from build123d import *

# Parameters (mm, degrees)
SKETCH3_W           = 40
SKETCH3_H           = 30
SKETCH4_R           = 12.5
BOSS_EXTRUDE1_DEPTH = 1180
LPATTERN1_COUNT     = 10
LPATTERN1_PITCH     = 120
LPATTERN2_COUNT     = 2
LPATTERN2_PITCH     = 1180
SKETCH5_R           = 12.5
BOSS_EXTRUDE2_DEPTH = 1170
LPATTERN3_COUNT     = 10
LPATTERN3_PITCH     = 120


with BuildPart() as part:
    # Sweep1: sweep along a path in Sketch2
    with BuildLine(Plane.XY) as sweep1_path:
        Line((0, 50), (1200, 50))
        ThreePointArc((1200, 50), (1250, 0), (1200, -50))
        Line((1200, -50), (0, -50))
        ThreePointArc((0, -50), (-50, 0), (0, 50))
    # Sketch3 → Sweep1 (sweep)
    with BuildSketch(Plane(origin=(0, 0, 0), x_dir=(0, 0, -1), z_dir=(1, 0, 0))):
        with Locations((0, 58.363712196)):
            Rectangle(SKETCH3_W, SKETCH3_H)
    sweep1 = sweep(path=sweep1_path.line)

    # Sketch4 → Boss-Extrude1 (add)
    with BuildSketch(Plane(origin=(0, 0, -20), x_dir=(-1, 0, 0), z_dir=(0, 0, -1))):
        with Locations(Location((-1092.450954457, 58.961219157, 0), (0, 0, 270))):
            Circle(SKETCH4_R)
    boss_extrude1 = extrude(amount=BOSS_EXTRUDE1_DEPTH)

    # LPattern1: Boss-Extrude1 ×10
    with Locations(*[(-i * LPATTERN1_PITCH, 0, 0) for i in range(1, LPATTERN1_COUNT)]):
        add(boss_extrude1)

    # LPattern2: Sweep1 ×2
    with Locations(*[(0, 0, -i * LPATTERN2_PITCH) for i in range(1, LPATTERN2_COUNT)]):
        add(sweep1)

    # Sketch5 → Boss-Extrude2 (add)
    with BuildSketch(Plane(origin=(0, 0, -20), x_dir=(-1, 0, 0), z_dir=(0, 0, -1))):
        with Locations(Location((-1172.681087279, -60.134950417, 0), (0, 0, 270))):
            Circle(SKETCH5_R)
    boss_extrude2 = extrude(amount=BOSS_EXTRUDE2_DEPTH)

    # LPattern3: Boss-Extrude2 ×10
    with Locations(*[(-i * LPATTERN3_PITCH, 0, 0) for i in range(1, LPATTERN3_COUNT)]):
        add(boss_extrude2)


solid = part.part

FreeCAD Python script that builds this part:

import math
import FreeCAD as App
import Part
import Sketcher
Q = App.Units.Quantity


def add_polygon(sketch, points):
    """Adds a closed chain of lines whose ends are joined by coincident constraints."""
    first, n = sketch.GeometryCount, len(points)
    for a, b in zip(points, points[1:] + points[:1]):
        sketch.addGeometry(Part.LineSegment(App.Vector(*a, 0), App.Vector(*b, 0)), False)
    for i in range(n):
        sketch.addConstraint(Sketcher.Constraint("Coincident", first + i, 2, first + (i + 1) % n, 1))

doc = App.newDocument("Part")
params = doc.addObject("Spreadsheet::Sheet", "Params")
for row, (alias, value) in enumerate([
    ("sketch1_width", "30 mm"),
    ("sketch1_height", "40 mm"),
    ("sketch2_radius", "50 mm"),
    ("sketch2_width", "1200 mm"),
    ("sketch3_diameter", "25 mm"),
    ("pad1_length", "1180 mm"),
    ("linearpattern_pitch", "120 mm"),
    ("linearpattern2_pitch", "1180 mm"),
    ("sketch4_diameter", "25 mm"),
    ("pad2_length", "1170 mm"),
    ("linearpattern3_pitch", "120 mm"),
], start=1):
    params.set(f"A{row}", alias)
    params.set(f"B{row}", "=" + value)
    params.setAlias(f"B{row}", alias)

body = doc.addObject("PartDesign::Body", "Body")

# Sketch on YZ plane
sketch1 = body.newObject("Sketcher::SketchObject", "Sketch")
sketch1.AttachmentSupport = (doc.getObject("YZ_Plane"), [""])
sketch1.MapMode = "FlatFace"
add_polygon(sketch1, [(73.363712, 20), (43.363712, 20), (43.363712, -20), (73.363712, -20)])  # lines 0-3
sketch1.addConstraint([
    Sketcher.Constraint("Horizontal", 0),
    Sketcher.Constraint("Vertical", 1),
    Sketcher.Constraint("Horizontal", 2),
    Sketcher.Constraint("Vertical", 3),
    Sketcher.Constraint("DistanceX", 0, 2, 0, 1, Q("30 mm")),
    Sketcher.Constraint("DistanceY", 1, 2, 1, 1, Q("40 mm")),
    Sketcher.Constraint("DistanceY", -1, 1, 0, 2, Q("20 mm")),
    Sketcher.Constraint("DistanceX", -1, 1, 0, 2, Q("43.363712 mm")),
])
sketch1.setExpression("Constraints[8]", "Params.sketch1_width")
sketch1.setExpression("Constraints[9]", "Params.sketch1_height")

# Sketch on XY plane
sketch2 = body.newObject("Sketcher::SketchObject", "Sketch001")
sketch2.AttachmentSupport = (doc.getObject("XY_Plane"), [""])
sketch2.MapMode = "FlatFace"
sketch2.addGeometry([
    Part.LineSegment(App.Vector(0, 50, 0), App.Vector(1200, 50, 0)),
    Part.ArcOfCircle(Part.Circle(App.Vector(1200, 0, 0), App.Vector(0, 0, 1), 50), math.radians(-90), math.radians(90)),
    Part.LineSegment(App.Vector(1200, -50, 0), App.Vector(0, -50, 0)),
    Part.ArcOfCircle(Part.Circle(App.Vector(0, 0, 0), App.Vector(0, 0, 1), 50), math.radians(90), math.radians(270)),
], False)
sketch2.addConstraint([
    Sketcher.Constraint("Tangent", 0, 2, 1, 2),
    Sketcher.Constraint("Tangent", 1, 1, 2, 1),
    Sketcher.Constraint("Tangent", 2, 2, 3, 2),
    Sketcher.Constraint("Tangent", 3, 1, 0, 1),
    Sketcher.Constraint("Horizontal", 0),
    Sketcher.Constraint("Horizontal", 2),
    Sketcher.Constraint("Coincident", 3, 3, -1, 1),
    Sketcher.Constraint("Radius", 1, Q("50 mm")),
    Sketcher.Constraint("DistanceX", 0, 1, 0, 2, Q("1200 mm")),
])
sketch2.setExpression("Constraints[7]", "Params.sketch2_radius")
sketch2.setExpression("Constraints[8]", "Params.sketch2_width")
doc.recompute()

additivepipe = body.newObject("PartDesign::AdditivePipe", "AdditivePipe")
additivepipe.Profile = sketch1
additivepipe.Spine = (sketch2, ["Edge1", "Edge2", "Edge3", "Edge4"])

# Sketch on XY plane
sketch3 = body.newObject("Sketcher::SketchObject", "Sketch002")
sketch3.AttachmentSupport = (doc.getObject("XY_Plane"), [""])
sketch3.MapMode = "FlatFace"
sketch3.AttachmentOffset = App.Placement(App.Vector(0, 0, -20), App.Rotation())
sketch3.addGeometry(Part.Circle(App.Vector(1092.450954, 58.961219, 0), App.Vector(0, 0, 1), 12.5), False)
sketch3.addConstraint([
    Sketcher.Constraint("Diameter", 0, Q("25 mm")),
    Sketcher.Constraint("DistanceY", -1, 1, 0, 3, Q("58.961219 mm")),
    Sketcher.Constraint("DistanceX", -1, 1, 0, 3, Q("1092.450954 mm")),
])
sketch3.setExpression("Constraints[0]", "Params.sketch3_diameter")
pad1 = body.newObject("PartDesign::Pad", "Pad")
pad1.Profile = sketch3
pad1.setExpression("Length", "Params.pad1_length")
pad1.Reversed = True
doc.recompute()

linearpattern = body.newObject("PartDesign::LinearPattern", "LinearPattern")
linearpattern.Originals = [pad1]
linearpattern.Direction = (doc.getObject("X_Axis"), [""])
linearpattern.Mode = "offset"
linearpattern.setExpression("Offset", "Params.linearpattern_pitch")
linearpattern.Occurrences = 10
linearpattern.Reversed = True
body.Tip = linearpattern
doc.recompute()

linearpattern2 = body.newObject("PartDesign::LinearPattern", "LinearPattern001")
linearpattern2.Originals = [additivepipe]
linearpattern2.Direction = (doc.getObject("Z_Axis"), [""])
linearpattern2.Mode = "offset"
linearpattern2.setExpression("Offset", "Params.linearpattern2_pitch")
linearpattern2.Occurrences = 2
linearpattern2.Reversed = True
body.Tip = linearpattern2

# Sketch on XY plane
sketch4 = body.newObject("Sketcher::SketchObject", "Sketch003")
sketch4.AttachmentSupport = (doc.getObject("XY_Plane"), [""])
sketch4.MapMode = "FlatFace"
sketch4.AttachmentOffset = App.Placement(App.Vector(0, 0, -20), App.Rotation())
sketch4.addGeometry(Part.Circle(App.Vector(1172.681087, -60.13495, 0), App.Vector(0, 0, 1), 12.5), False)
sketch4.addConstraint([
    Sketcher.Constraint("Diameter", 0, Q("25 mm")),
    Sketcher.Constraint("DistanceY", 0, 3, -1, 1, Q("60.13495 mm")),
    Sketcher.Constraint("DistanceX", -1, 1, 0, 3, Q("1172.681087 mm")),
])
sketch4.setExpression("Constraints[0]", "Params.sketch4_diameter")
pad2 = body.newObject("PartDesign::Pad", "Pad001")
pad2.Profile = sketch4
pad2.setExpression("Length", "Params.pad2_length")
pad2.Reversed = True
doc.recompute()

linearpattern3 = body.newObject("PartDesign::LinearPattern", "LinearPattern002")
linearpattern3.Originals = [pad2]
linearpattern3.Direction = (doc.getObject("X_Axis"), [""])
linearpattern3.Mode = "offset"
linearpattern3.setExpression("Offset", "Params.linearpattern3_pitch")
linearpattern3.Occurrences = 10
linearpattern3.Reversed = True
body.Tip = linearpattern3

doc.recompute()
